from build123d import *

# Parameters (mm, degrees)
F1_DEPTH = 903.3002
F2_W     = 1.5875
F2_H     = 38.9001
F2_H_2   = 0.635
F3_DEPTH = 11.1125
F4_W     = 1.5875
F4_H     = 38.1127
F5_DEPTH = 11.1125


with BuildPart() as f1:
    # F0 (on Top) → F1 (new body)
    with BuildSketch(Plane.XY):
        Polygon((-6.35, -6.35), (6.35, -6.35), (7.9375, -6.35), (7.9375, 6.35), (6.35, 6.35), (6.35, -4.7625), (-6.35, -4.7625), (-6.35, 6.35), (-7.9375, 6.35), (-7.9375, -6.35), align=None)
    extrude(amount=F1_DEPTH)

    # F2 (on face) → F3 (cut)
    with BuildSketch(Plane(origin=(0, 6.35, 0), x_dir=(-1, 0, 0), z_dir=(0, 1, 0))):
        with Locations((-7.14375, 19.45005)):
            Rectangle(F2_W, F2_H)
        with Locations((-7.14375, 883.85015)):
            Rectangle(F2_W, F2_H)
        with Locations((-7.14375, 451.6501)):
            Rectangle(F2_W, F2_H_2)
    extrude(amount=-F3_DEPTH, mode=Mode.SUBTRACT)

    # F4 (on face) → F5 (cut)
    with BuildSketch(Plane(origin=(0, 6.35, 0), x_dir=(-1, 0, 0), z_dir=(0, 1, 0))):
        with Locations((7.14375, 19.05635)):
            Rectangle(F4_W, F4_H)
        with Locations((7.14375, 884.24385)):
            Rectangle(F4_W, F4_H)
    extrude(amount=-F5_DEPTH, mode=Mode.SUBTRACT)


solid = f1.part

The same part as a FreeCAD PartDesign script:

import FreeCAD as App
import Part
import Sketcher
Q = App.Units.Quantity

doc = App.newDocument("Part")
body = doc.addObject("PartDesign::Body", "Body")

# Sketch on XY plane
sketch1 = doc.addObject("Sketcher::SketchObject", "Sketch")
body.addObject(sketch1)
sketch1.AttachmentSupport = (doc.XY_Plane, [""])
sketch1.MapMode = "FlatFace"
sketch1.addGeometry([
    Part.LineSegment(App.Vector(7.9, -6.3, 0), App.Vector(7.9, 6.3, 0)),  # 0
    Part.LineSegment(App.Vector(7.9, 6.3, 0), App.Vector(6.3, 6.3, 0)),  # 1
    Part.LineSegment(App.Vector(6.3, 6.3, 0), App.Vector(6.3, -4.8, 0)),  # 2
    Part.LineSegment(App.Vector(6.3, -4.8, 0), App.Vector(-6.3, -4.8, 0)),  # 3
    Part.LineSegment(App.Vector(-6.3, -4.8, 0), App.Vector(-6.3, 6.3, 0)),  # 4
    Part.LineSegment(App.Vector(-6.3, 6.3, 0), App.Vector(-7.9, 6.3, 0)),  # 5
    Part.LineSegment(App.Vector(-7.9, 6.3, 0), App.Vector(-7.9, -6.3, 0)),  # 6
    Part.LineSegment(App.Vector(-7.9, -6.3, 0), App.Vector(7.9, -6.3, 0)),  # 7
], False)
sketch1.addConstraint([
    Sketcher.Constraint("Coincident", 0, 2, 1, 1),
    Sketcher.Constraint("Coincident", 1, 2, 2, 1),
    Sketcher.Constraint("Coincident", 2, 2, 3, 1),
    Sketcher.Constraint("Coincident", 3, 2, 4, 1),
    Sketcher.Constraint("Coincident", 4, 2, 5, 1),
    Sketcher.Constraint("Coincident", 5, 2, 6, 1),
    Sketcher.Constraint("Coincident", 6, 2, 7, 1),
    Sketcher.Constraint("Coincident", 7, 2, 0, 1),
    Sketcher.Constraint("Vertical", 0),
    Sketcher.Constraint("Horizontal", 1),
    Sketcher.Constraint("Vertical", 2),
    Sketcher.Constraint("Horizontal", 3),
    Sketcher.Constraint("Vertical", 4),
    Sketcher.Constraint("Horizontal", 5),
    Sketcher.Constraint("Vertical", 6),
    Sketcher.Constraint("Horizontal", 7),
    Sketcher.Constraint("Symmetric", 0, 2, 6, 2, -1, 1),
    Sketcher.Constraint("Symmetric", 1, 2, 4, 2, -2),
    Sketcher.Constraint("Equal", 3, 0),
    Sketcher.Constraint("DistanceX", 3, 2, 3, 1, Q("0.5 in")),
    Sketcher.Constraint("DistanceX", 1, 2, 1, 1, Q("0.0625 in")),
    Sketcher.Constraint("DistanceY", 2, 2, 2, 1, Q("0.4375 in")),
])
pad1 = doc.addObject("PartDesign::Pad", "Pad")
body.addObject(pad1)
pad1.Profile = sketch1
pad1.Length = Q("35.563 in")

# Sketch on XZ plane
sketch2 = doc.addObject("Sketcher::SketchObject", "Sketch001")
body.addObject(sketch2)
sketch2.AttachmentSupport = (doc.XZ_Plane, [""])
sketch2.MapMode = "FlatFace"
sketch2.AttachmentOffset = App.Placement(App.Vector(0, 0, -0.25 * 25.4), App.Rotation())
sketch2.addGeometry([
    Part.LineSegment(App.Vector(7.9, 38.9, 0), App.Vector(7.9, 0, 0)),  # 0
    Part.LineSegment(App.Vector(7.9, 0, 0), App.Vector(6.3, 0, 0)),  # 1
    Part.LineSegment(App.Vector(6.3, 0, 0), App.Vector(6.3, 38.9, 0)),  # 2
    Part.LineSegment(App.Vector(6.3, 38.9, 0), App.Vector(7.9, 38.9, 0)),  # 3
    Part.LineSegment(App.Vector(7.9, 903.3, 0), App.Vector(7.9, 864.4, 0)),  # 4
    Part.LineSegment(App.Vector(7.9, 864.4, 0), App.Vector(6.3, 864.4, 0)),  # 5
    Part.LineSegment(App.Vector(6.3, 864.4, 0), App.Vector(6.3, 903.3, 0)),  # 6
    Part.LineSegment(App.Vector(6.3, 903.3, 0), App.Vector(7.9, 903.3, 0)),  # 7
    Part.LineSegment(App.Vector(7.9, 452, 0), App.Vector(7.9, 451.3, 0)),  # 8
    Part.LineSegment(App.Vector(7.9, 451.3, 0), App.Vector(6.3, 451.3, 0)),  # 9
    Part.LineSegment(App.Vector(6.3, 451.3, 0), App.Vector(6.3, 452, 0)),  # 10
    Part.LineSegment(App.Vector(6.3, 452, 0), App.Vector(7.9, 452, 0)),  # 11
], False)
sketch2.addConstraint([
    Sketcher.Constraint("Coincident", 0, 2, 1, 1),
    Sketcher.Constraint("Coincident", 1, 2, 2, 1),
    Sketcher.Constraint("Coincident", 2, 2, 3, 1),
    Sketcher.Constraint("Coincident", 3, 2, 0, 1),
    Sketcher.Constraint("Coincident", 4, 2, 5, 1),
    Sketcher.Constraint("Coincident", 5, 2, 6, 1),
    Sketcher.Constraint("Coincident", 6, 2, 7, 1),
    Sketcher.Constraint("Coincident", 7, 2, 4, 1),
    Sketcher.Constraint("Coincident", 8, 2, 9, 1),
    Sketcher.Constraint("Coincident", 9, 2, 10, 1),
    Sketcher.Constraint("Coincident", 10, 2, 11, 1),
    Sketcher.Constraint("Coincident", 11, 2, 8, 1),
    Sketcher.Constraint("Vertical", 0),
    Sketcher.Constraint("Horizontal", 1),
    Sketcher.Constraint("Vertical", 2),
    Sketcher.Constraint("Horizontal", 3),
    Sketcher.Constraint("Vertical", 4),
    Sketcher.Constraint("Horizontal", 5),
    Sketcher.Constraint("Vertical", 6),
    Sketcher.Constraint("Horizontal", 7),
    Sketcher.Constraint("Vertical", 8),
    Sketcher.Constraint("Horizontal", 9),
    Sketcher.Constraint("Vertical", 10),
    Sketcher.Constraint("Horizontal", 11),
    Sketcher.Constraint("PointOnObject", 0, 2, -1),
    Sketcher.Constraint("Vertical", 3, 2, 4, 2),
    Sketcher.Constraint("Vertical", 2, 2, 5, 2),
    Sketcher.Constraint("Vertical", 7, 2, 8, 2),
    Sketcher.Constraint("Vertical", 6, 2, 9, 2),
    Sketcher.Constraint("Equal", 2, 4),
    Sketcher.Constraint("DistanceY", 3, 2, 4, 2, Q("32.5 in")),
    Sketcher.Constraint("DistanceX", 1, 2, 1, 1, Q("0.0625 in")),
    Sketcher.Constraint("DistanceY", 8, 2, 8, 1, Q("0.025 in")),
    Sketcher.Constraint("DistanceX", -1, 1, 1, 2, Q("0.25 in")),
    Sketcher.Constraint("DistanceY", 0, 2, 0, 1, Q("1.5315 in")),
    Sketcher.Constraint("DistanceY", -1, 1, 8, 2, Q("17.769 in")),
])
pocket1 = doc.addObject("PartDesign::Pocket", "Pocket")
body.addObject(pocket1)
pocket1.Profile = sketch2
pocket1.Length = Q("0.4375 in")
pocket1.Reversed = True

# Sketch on XZ plane
sketch3 = doc.addObject("Sketcher::SketchObject", "Sketch002")
body.addObject(sketch3)
sketch3.AttachmentSupport = (doc.XZ_Plane, [""])
sketch3.MapMode = "FlatFace"
sketch3.AttachmentOffset = App.Placement(App.Vector(0, 0, -0.25 * 25.4), App.Rotation())
sketch3.addGeometry([
    Part.LineSegment(App.Vector(-6.3, 38.1, 0), App.Vector(-6.3, 0, 0)),  # 0
    Part.LineSegment(App.Vector(-6.3, 0, 0), App.Vector(-7.9, 0, 0)),  # 1
    Part.LineSegment(App.Vector(-7.9, 0, 0), App.Vector(-7.9, 38.1, 0)),  # 2
    Part.LineSegment(App.Vector(-7.9, 38.1, 0), App.Vector(-6.3, 38.1, 0)),  # 3
    Part.LineSegment(App.Vector(-6.3, 903.3, 0), App.Vector(-6.3, 865.2, 0)),  # 4
    Part.LineSegment(App.Vector(-6.3, 865.2, 0), App.Vector(-7.9, 865.2, 0)),  # 5
    Part.LineSegment(App.Vector(-7.9, 865.2, 0), App.Vector(-7.9, 903.3, 0)),  # 6
    Part.LineSegment(App.Vector(-7.9, 903.3, 0), App.Vector(-6.3, 903.3, 0)),  # 7
], False)
sketch3.addConstraint([
    Sketcher.Constraint("Coincident", 0, 2, 1, 1),
    Sketcher.Constraint("Coincident", 1, 2, 2, 1),
    Sketcher.Constraint("Coincident", 2, 2, 3, 1),
    Sketcher.Constraint("Coincident", 3, 2, 0, 1),
    Sketcher.Constraint("Coincident", 4, 2, 5, 1),
    Sketcher.Constraint("Coincident", 5, 2, 6, 1),
    Sketcher.Constraint("Coincident", 6, 2, 7, 1),
    Sketcher.Constraint("Coincident", 7, 2, 4, 1),
    Sketcher.Constraint("Vertical", 0),
    Sketcher.Constraint("Horizontal", 1),
    Sketcher.Constraint("Vertical", 2),
    Sketcher.Constraint("Horizontal", 3),
    Sketcher.Constraint("Vertical", 4),
    Sketcher.Constraint("Horizontal", 5),
    Sketcher.Constraint("Vertical", 6),
    Sketcher.Constraint("Horizontal", 7),
    Sketcher.Constraint("PointOnObject", 0, 2, -1),
    Sketcher.Constraint("Vertical", 3, 2, 4, 2),
    Sketcher.Constraint("Vertical", 2, 2, 5, 2),
    Sketcher.Constraint("Equal", 2, 4),
    Sketcher.Constraint("DistanceX", 1, 2, 1, 1, Q("0.0625 in")),
    Sketcher.Constraint("DistanceX", 0, 2, -1, 1, Q("0.25 in")),
    Sketcher.Constraint("DistanceY", 0, 2, 0, 1, Q("1.5005 in")),
    Sketcher.Constraint("DistanceY", -1, 1, 4, 2, Q("34.0625 in")),
])
pocket2 = doc.addObject("PartDesign::Pocket", "Pocket001")
body.addObject(pocket2)
pocket2.Profile = sketch3
pocket2.Length = Q("0.4375 in")
pocket2.Reversed = True

doc.recompute()
